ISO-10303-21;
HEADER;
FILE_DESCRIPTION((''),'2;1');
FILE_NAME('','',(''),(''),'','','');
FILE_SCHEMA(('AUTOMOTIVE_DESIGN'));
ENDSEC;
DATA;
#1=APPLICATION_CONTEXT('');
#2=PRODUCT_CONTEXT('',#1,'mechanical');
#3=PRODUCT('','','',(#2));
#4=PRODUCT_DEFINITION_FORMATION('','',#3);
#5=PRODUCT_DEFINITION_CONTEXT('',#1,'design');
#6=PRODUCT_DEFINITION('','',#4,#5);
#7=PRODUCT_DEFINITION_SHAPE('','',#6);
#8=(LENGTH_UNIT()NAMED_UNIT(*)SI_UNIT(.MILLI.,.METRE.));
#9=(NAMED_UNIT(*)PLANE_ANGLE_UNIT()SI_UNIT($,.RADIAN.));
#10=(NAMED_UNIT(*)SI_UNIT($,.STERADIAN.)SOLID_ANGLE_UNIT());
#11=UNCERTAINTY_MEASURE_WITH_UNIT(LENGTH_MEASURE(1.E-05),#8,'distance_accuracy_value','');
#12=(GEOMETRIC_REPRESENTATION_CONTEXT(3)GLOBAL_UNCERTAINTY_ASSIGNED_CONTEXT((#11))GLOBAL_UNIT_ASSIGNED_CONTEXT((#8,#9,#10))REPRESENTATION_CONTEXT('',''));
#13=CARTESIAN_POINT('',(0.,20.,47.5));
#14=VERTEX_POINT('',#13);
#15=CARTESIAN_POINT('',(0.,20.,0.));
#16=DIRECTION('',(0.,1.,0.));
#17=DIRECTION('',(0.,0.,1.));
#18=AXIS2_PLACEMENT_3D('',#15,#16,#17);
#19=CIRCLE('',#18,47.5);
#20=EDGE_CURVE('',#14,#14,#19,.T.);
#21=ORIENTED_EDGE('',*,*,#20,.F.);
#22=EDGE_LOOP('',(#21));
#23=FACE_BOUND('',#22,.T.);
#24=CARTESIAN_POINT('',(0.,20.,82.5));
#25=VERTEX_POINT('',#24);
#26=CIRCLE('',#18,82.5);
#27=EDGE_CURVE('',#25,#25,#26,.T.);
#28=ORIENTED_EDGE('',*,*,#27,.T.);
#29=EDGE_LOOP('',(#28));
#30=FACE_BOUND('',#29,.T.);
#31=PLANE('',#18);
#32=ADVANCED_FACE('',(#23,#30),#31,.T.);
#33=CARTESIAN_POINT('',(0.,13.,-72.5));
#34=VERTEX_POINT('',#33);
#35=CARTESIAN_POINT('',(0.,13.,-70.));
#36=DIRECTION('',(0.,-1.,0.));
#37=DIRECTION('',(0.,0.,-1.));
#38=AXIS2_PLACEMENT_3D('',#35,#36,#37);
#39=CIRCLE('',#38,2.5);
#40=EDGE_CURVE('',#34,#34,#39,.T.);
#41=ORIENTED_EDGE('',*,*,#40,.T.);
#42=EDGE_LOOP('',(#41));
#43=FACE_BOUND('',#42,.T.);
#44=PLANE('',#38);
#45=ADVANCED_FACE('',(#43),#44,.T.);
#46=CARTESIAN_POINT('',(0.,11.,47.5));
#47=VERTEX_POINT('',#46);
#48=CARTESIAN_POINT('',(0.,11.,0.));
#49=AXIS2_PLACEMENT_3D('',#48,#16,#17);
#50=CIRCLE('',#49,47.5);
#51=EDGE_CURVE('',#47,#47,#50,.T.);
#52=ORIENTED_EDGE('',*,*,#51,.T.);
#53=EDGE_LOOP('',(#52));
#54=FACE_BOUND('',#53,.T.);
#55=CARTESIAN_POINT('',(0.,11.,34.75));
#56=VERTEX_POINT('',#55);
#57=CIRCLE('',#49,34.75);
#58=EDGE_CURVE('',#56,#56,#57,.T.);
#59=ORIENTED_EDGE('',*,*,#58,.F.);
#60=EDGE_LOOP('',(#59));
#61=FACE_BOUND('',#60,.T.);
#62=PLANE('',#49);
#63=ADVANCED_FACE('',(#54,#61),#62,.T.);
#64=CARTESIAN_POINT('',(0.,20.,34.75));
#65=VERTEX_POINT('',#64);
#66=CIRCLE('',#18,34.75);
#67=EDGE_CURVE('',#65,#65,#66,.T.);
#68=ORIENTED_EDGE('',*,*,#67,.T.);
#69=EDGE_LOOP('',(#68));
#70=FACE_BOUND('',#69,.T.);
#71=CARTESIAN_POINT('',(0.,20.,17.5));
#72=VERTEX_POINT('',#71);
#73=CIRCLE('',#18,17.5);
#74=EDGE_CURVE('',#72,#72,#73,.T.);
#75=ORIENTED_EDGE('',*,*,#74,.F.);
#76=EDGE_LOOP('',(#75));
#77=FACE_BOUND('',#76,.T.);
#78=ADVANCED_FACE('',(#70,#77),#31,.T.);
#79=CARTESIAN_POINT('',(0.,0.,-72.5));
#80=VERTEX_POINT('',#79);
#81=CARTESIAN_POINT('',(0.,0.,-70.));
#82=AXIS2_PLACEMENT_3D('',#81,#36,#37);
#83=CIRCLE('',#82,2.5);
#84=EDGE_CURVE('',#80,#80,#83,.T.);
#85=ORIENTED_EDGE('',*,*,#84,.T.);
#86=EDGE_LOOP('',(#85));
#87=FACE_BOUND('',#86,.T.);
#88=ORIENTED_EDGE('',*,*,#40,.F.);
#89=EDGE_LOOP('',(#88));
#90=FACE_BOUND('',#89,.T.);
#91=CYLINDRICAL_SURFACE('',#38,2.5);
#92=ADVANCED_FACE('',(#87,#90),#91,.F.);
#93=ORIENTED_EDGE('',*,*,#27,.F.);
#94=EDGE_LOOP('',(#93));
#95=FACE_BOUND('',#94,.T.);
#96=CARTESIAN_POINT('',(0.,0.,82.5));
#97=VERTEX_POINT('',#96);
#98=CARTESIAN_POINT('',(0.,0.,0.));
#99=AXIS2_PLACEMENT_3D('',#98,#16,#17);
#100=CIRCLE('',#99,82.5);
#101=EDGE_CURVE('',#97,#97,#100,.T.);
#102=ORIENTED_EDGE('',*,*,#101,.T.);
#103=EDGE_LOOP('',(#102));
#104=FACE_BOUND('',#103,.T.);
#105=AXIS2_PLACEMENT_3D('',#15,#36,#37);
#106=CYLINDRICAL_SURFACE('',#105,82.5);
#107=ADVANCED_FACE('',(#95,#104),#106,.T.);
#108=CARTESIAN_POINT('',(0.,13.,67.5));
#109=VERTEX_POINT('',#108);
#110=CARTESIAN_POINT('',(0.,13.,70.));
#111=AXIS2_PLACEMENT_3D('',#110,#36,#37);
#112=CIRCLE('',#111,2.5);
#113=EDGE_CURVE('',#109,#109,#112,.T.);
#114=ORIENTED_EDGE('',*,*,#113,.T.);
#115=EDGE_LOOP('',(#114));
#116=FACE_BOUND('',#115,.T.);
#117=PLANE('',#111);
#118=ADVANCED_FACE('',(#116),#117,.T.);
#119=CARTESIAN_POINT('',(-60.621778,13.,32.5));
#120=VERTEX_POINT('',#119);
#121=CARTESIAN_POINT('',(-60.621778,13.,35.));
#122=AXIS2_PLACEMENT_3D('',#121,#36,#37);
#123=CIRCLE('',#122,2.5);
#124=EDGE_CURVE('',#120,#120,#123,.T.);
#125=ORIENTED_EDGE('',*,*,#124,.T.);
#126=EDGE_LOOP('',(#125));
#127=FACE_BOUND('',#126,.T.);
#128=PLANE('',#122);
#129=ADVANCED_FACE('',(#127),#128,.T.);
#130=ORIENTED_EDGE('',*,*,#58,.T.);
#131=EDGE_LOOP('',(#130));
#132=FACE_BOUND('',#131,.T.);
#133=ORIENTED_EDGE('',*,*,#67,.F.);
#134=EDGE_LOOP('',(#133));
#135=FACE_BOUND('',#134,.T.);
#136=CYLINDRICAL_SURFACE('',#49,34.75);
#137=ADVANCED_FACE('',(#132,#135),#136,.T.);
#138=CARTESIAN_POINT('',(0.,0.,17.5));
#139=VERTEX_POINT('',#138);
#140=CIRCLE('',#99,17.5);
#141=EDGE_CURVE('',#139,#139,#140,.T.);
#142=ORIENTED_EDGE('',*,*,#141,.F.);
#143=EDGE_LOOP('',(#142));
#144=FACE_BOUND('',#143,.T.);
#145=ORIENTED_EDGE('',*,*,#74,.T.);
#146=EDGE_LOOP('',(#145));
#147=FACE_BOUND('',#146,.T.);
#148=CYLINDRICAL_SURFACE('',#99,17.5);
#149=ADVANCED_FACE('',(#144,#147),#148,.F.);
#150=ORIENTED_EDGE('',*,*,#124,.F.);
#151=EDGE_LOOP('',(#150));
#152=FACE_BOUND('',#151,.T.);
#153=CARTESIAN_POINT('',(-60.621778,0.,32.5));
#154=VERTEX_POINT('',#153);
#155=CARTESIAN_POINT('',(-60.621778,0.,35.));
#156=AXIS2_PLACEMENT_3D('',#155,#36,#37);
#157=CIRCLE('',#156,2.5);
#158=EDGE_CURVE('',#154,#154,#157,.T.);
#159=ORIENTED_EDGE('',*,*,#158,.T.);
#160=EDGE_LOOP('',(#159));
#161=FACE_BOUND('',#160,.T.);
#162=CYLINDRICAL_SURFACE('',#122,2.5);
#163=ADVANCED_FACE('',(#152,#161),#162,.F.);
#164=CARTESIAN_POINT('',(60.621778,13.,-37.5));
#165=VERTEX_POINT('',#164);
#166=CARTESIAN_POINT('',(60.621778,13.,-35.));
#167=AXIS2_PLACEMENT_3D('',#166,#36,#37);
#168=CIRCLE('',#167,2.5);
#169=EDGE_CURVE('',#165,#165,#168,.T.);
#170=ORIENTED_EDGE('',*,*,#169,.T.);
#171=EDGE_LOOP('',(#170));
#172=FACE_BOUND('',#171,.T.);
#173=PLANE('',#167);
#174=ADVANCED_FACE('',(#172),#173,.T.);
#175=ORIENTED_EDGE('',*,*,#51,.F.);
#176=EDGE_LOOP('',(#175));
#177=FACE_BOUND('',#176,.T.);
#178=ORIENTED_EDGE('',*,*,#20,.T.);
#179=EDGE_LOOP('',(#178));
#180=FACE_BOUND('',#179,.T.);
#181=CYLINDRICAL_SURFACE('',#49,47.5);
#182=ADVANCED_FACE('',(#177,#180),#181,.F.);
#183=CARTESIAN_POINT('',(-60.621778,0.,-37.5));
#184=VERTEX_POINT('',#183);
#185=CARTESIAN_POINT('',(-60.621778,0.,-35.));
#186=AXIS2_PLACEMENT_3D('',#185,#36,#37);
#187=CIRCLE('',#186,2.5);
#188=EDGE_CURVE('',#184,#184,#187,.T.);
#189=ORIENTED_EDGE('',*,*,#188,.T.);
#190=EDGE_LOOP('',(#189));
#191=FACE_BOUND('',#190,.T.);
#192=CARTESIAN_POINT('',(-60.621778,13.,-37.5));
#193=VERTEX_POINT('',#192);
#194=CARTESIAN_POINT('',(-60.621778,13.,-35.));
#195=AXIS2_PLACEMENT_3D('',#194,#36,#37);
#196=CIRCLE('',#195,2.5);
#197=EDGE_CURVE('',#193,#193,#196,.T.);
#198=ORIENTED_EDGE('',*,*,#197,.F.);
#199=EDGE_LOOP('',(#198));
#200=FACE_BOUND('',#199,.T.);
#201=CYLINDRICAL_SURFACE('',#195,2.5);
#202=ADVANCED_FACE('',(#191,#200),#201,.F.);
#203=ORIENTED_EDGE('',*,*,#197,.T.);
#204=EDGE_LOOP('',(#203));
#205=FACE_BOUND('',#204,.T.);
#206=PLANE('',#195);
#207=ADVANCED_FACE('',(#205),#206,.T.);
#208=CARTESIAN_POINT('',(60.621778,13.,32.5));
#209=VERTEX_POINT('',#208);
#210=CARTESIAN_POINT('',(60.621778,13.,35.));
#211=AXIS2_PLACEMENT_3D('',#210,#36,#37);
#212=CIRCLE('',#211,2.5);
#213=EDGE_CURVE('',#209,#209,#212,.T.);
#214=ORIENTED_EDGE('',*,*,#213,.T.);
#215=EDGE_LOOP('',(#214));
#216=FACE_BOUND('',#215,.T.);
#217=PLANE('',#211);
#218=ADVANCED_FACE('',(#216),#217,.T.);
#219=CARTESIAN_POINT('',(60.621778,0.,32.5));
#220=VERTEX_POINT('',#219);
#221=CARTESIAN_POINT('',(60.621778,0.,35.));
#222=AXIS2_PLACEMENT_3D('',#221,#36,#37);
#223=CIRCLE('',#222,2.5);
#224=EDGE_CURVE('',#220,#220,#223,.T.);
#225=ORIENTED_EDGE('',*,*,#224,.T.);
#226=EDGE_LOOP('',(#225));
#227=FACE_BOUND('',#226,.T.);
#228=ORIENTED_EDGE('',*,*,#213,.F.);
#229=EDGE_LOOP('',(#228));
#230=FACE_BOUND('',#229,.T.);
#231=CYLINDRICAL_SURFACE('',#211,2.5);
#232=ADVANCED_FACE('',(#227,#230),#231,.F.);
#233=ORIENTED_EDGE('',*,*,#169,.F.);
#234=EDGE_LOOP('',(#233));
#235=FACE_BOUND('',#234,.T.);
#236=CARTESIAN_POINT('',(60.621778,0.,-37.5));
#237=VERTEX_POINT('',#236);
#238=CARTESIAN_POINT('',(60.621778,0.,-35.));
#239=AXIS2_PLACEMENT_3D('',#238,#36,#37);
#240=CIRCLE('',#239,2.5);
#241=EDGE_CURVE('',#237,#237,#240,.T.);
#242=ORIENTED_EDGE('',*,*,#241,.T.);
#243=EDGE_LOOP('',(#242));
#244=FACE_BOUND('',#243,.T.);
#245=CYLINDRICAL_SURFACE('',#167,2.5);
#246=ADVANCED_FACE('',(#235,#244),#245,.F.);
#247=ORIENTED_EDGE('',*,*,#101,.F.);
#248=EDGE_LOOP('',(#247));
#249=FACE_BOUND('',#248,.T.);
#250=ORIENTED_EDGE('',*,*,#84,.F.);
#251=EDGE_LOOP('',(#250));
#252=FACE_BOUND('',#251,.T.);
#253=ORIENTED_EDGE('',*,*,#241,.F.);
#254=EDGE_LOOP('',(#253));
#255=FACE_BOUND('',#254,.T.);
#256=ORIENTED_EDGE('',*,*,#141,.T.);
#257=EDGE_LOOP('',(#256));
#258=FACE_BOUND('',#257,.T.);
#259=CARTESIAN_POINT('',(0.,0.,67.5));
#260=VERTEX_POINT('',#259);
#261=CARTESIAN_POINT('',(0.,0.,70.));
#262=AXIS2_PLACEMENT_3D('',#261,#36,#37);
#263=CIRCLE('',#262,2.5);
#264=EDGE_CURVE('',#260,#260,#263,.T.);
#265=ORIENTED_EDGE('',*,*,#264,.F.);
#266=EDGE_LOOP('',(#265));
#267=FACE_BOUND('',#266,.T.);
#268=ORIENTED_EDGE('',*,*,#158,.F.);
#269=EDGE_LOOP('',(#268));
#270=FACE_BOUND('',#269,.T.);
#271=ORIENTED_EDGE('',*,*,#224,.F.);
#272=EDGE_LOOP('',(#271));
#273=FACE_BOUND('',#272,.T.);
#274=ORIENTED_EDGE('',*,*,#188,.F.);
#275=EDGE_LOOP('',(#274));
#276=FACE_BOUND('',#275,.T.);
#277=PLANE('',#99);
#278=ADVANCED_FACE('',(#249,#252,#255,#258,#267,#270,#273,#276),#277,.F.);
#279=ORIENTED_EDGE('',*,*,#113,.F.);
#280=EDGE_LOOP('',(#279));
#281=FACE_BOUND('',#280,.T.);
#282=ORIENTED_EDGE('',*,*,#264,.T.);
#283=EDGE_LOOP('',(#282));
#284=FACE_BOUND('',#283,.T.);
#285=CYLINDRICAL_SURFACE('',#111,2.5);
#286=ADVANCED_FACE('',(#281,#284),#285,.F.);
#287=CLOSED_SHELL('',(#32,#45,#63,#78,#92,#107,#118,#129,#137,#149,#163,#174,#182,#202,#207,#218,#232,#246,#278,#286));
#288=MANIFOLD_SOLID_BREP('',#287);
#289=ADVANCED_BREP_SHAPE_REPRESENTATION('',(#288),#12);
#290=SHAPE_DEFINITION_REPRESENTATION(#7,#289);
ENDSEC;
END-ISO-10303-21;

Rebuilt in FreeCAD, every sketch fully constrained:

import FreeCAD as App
import Part
import Sketcher
Q = App.Units.Quantity

doc = App.newDocument("Part")
body = doc.addObject("PartDesign::Body", "Body")

# Sketch on XZ plane
sketch1 = body.newObject("Sketcher::SketchObject", "Sketch")
sketch1.AttachmentSupport = (doc.getObject("XZ_Plane"), [""])
sketch1.MapMode = "FlatFace"
sketch1.addGeometry(Part.Circle(App.Vector(0, 0, 0), App.Vector(0, 0, 1), 82.5), False)
sketch1.addConstraint([
    Sketcher.Constraint("Coincident", 0, 3, -1, 1),
    Sketcher.Constraint("Diameter", 0, Q("165 mm")),
])
pad1 = body.newObject("PartDesign::Pad", "Pad")
pad1.Profile = sketch1
pad1.Length = 20
pad1.Reversed = True

# Sketch on XZ plane
sketch2 = body.newObject("Sketcher::SketchObject", "Sketch001")
sketch2.AttachmentSupport = (doc.getObject("XZ_Plane"), [""])
sketch2.MapMode = "FlatFace"
sketch2.AttachmentOffset = App.Placement(App.Vector(0, 0, -20), App.Rotation())
sketch2.addGeometry(Part.Circle(App.Vector(0, 0, 0), App.Vector(0, 0, 1), 17.5), False)
sketch2.addConstraint([
    Sketcher.Constraint("Coincident", 0, 3, -1, 1),
    Sketcher.Constraint("Diameter", 0, Q("35 mm")),
])
pocket1 = body.newObject("PartDesign::Pocket", "Pocket")
pocket1.Profile = sketch2
pocket1.Length = 20
pocket1.Reversed = True

# Sketch on XZ plane
sketch3 = body.newObject("Sketcher::SketchObject", "Sketch002")
sketch3.AttachmentSupport = (doc.getObject("XZ_Plane"), [""])
sketch3.MapMode = "FlatFace"
sketch3.AttachmentOffset = App.Placement(App.Vector(0, 0, -20), App.Rotation())
sketch3.addGeometry([
    Part.Circle(App.Vector(0, 0, 0), App.Vector(0, 0, 1), 47.5),
    Part.Circle(App.Vector(0, 0, 0), App.Vector(0, 0, 1), 34.75),
], False)
sketch3.addConstraint([
    Sketcher.Constraint("Coincident", 0, 3, -1, 1),
    Sketcher.Constraint("Coincident", 1, 3, -1, 1),
    Sketcher.Constraint("Diameter", 0, Q("95 mm")),
    Sketcher.Constraint("Diameter", 1, Q("69.5 mm")),
])
pocket2 = body.newObject("PartDesign::Pocket", "Pocket001")
pocket2.Profile = sketch3
pocket2.Length = 9
pocket2.Reversed = True

# Sketch on XZ plane
sketch4 = body.newObject("Sketcher::SketchObject", "Sketch003")
sketch4.AttachmentSupport = (doc.getObject("XZ_Plane"), [""])
sketch4.MapMode = "FlatFace"
sketch4.addGeometry([
    Part.Circle(App.Vector(0, 70, 0), App.Vector(0, 0, 1), 2.5),  # 0
    Part.Circle(App.Vector(60.621778, 35, 0), App.Vector(0, 0, 1), 2.5),  # 1
    Part.Circle(App.Vector(60.621778, -35, 0), App.Vector(0, 0, 1), 2.5),  # 2
    Part.Circle(App.Vector(0, -70, 0), App.Vector(0, 0, 1), 2.5),  # 3
    Part.Circle(App.Vector(-60.621778, -35, 0), App.Vector(0, 0, 1), 2.5),  # 4
    Part.Circle(App.Vector(-60.621778, 35, 0), App.Vector(0, 0, 1), 2.5),  # 5
], False)
sketch4.addConstraint([
    Sketcher.Constraint("Equal", 0, 1),
    Sketcher.Constraint("Equal", 1, 2),
    Sketcher.Constraint("Equal", 2, 3),
    Sketcher.Constraint("Equal", 3, 4),
    Sketcher.Constraint("Equal", 4, 5),
    Sketcher.Constraint("Symmetric", 0, 3, 3, 3, -1, 1),
    Sketcher.Constraint("Symmetric", 1, 3, 4, 3, -1, 1),
    Sketcher.Constraint("Symmetric", 2, 3, 5, 3, -1, 1),
    Sketcher.Constraint("Symmetric", 2, 3, 4, 3, -2),
    Sketcher.Constraint("PointOnObject", 0, 3, -2),
    Sketcher.Constraint("Diameter", 0, Q("5 mm")),
    Sketcher.Constraint("DistanceY", -1, 1, 0, 3, Q("70 mm")),
    Sketcher.Constraint("DistanceY", -1, 1, 1, 3, Q("35 mm")),
    Sketcher.Constraint("DistanceX", -1, 1, 1, 3, Q("60.621778 mm")),
])
pocket3 = body.newObject("PartDesign::Pocket", "Pocket002")
pocket3.Profile = sketch4
pocket3.Length = 13

doc.recompute()
